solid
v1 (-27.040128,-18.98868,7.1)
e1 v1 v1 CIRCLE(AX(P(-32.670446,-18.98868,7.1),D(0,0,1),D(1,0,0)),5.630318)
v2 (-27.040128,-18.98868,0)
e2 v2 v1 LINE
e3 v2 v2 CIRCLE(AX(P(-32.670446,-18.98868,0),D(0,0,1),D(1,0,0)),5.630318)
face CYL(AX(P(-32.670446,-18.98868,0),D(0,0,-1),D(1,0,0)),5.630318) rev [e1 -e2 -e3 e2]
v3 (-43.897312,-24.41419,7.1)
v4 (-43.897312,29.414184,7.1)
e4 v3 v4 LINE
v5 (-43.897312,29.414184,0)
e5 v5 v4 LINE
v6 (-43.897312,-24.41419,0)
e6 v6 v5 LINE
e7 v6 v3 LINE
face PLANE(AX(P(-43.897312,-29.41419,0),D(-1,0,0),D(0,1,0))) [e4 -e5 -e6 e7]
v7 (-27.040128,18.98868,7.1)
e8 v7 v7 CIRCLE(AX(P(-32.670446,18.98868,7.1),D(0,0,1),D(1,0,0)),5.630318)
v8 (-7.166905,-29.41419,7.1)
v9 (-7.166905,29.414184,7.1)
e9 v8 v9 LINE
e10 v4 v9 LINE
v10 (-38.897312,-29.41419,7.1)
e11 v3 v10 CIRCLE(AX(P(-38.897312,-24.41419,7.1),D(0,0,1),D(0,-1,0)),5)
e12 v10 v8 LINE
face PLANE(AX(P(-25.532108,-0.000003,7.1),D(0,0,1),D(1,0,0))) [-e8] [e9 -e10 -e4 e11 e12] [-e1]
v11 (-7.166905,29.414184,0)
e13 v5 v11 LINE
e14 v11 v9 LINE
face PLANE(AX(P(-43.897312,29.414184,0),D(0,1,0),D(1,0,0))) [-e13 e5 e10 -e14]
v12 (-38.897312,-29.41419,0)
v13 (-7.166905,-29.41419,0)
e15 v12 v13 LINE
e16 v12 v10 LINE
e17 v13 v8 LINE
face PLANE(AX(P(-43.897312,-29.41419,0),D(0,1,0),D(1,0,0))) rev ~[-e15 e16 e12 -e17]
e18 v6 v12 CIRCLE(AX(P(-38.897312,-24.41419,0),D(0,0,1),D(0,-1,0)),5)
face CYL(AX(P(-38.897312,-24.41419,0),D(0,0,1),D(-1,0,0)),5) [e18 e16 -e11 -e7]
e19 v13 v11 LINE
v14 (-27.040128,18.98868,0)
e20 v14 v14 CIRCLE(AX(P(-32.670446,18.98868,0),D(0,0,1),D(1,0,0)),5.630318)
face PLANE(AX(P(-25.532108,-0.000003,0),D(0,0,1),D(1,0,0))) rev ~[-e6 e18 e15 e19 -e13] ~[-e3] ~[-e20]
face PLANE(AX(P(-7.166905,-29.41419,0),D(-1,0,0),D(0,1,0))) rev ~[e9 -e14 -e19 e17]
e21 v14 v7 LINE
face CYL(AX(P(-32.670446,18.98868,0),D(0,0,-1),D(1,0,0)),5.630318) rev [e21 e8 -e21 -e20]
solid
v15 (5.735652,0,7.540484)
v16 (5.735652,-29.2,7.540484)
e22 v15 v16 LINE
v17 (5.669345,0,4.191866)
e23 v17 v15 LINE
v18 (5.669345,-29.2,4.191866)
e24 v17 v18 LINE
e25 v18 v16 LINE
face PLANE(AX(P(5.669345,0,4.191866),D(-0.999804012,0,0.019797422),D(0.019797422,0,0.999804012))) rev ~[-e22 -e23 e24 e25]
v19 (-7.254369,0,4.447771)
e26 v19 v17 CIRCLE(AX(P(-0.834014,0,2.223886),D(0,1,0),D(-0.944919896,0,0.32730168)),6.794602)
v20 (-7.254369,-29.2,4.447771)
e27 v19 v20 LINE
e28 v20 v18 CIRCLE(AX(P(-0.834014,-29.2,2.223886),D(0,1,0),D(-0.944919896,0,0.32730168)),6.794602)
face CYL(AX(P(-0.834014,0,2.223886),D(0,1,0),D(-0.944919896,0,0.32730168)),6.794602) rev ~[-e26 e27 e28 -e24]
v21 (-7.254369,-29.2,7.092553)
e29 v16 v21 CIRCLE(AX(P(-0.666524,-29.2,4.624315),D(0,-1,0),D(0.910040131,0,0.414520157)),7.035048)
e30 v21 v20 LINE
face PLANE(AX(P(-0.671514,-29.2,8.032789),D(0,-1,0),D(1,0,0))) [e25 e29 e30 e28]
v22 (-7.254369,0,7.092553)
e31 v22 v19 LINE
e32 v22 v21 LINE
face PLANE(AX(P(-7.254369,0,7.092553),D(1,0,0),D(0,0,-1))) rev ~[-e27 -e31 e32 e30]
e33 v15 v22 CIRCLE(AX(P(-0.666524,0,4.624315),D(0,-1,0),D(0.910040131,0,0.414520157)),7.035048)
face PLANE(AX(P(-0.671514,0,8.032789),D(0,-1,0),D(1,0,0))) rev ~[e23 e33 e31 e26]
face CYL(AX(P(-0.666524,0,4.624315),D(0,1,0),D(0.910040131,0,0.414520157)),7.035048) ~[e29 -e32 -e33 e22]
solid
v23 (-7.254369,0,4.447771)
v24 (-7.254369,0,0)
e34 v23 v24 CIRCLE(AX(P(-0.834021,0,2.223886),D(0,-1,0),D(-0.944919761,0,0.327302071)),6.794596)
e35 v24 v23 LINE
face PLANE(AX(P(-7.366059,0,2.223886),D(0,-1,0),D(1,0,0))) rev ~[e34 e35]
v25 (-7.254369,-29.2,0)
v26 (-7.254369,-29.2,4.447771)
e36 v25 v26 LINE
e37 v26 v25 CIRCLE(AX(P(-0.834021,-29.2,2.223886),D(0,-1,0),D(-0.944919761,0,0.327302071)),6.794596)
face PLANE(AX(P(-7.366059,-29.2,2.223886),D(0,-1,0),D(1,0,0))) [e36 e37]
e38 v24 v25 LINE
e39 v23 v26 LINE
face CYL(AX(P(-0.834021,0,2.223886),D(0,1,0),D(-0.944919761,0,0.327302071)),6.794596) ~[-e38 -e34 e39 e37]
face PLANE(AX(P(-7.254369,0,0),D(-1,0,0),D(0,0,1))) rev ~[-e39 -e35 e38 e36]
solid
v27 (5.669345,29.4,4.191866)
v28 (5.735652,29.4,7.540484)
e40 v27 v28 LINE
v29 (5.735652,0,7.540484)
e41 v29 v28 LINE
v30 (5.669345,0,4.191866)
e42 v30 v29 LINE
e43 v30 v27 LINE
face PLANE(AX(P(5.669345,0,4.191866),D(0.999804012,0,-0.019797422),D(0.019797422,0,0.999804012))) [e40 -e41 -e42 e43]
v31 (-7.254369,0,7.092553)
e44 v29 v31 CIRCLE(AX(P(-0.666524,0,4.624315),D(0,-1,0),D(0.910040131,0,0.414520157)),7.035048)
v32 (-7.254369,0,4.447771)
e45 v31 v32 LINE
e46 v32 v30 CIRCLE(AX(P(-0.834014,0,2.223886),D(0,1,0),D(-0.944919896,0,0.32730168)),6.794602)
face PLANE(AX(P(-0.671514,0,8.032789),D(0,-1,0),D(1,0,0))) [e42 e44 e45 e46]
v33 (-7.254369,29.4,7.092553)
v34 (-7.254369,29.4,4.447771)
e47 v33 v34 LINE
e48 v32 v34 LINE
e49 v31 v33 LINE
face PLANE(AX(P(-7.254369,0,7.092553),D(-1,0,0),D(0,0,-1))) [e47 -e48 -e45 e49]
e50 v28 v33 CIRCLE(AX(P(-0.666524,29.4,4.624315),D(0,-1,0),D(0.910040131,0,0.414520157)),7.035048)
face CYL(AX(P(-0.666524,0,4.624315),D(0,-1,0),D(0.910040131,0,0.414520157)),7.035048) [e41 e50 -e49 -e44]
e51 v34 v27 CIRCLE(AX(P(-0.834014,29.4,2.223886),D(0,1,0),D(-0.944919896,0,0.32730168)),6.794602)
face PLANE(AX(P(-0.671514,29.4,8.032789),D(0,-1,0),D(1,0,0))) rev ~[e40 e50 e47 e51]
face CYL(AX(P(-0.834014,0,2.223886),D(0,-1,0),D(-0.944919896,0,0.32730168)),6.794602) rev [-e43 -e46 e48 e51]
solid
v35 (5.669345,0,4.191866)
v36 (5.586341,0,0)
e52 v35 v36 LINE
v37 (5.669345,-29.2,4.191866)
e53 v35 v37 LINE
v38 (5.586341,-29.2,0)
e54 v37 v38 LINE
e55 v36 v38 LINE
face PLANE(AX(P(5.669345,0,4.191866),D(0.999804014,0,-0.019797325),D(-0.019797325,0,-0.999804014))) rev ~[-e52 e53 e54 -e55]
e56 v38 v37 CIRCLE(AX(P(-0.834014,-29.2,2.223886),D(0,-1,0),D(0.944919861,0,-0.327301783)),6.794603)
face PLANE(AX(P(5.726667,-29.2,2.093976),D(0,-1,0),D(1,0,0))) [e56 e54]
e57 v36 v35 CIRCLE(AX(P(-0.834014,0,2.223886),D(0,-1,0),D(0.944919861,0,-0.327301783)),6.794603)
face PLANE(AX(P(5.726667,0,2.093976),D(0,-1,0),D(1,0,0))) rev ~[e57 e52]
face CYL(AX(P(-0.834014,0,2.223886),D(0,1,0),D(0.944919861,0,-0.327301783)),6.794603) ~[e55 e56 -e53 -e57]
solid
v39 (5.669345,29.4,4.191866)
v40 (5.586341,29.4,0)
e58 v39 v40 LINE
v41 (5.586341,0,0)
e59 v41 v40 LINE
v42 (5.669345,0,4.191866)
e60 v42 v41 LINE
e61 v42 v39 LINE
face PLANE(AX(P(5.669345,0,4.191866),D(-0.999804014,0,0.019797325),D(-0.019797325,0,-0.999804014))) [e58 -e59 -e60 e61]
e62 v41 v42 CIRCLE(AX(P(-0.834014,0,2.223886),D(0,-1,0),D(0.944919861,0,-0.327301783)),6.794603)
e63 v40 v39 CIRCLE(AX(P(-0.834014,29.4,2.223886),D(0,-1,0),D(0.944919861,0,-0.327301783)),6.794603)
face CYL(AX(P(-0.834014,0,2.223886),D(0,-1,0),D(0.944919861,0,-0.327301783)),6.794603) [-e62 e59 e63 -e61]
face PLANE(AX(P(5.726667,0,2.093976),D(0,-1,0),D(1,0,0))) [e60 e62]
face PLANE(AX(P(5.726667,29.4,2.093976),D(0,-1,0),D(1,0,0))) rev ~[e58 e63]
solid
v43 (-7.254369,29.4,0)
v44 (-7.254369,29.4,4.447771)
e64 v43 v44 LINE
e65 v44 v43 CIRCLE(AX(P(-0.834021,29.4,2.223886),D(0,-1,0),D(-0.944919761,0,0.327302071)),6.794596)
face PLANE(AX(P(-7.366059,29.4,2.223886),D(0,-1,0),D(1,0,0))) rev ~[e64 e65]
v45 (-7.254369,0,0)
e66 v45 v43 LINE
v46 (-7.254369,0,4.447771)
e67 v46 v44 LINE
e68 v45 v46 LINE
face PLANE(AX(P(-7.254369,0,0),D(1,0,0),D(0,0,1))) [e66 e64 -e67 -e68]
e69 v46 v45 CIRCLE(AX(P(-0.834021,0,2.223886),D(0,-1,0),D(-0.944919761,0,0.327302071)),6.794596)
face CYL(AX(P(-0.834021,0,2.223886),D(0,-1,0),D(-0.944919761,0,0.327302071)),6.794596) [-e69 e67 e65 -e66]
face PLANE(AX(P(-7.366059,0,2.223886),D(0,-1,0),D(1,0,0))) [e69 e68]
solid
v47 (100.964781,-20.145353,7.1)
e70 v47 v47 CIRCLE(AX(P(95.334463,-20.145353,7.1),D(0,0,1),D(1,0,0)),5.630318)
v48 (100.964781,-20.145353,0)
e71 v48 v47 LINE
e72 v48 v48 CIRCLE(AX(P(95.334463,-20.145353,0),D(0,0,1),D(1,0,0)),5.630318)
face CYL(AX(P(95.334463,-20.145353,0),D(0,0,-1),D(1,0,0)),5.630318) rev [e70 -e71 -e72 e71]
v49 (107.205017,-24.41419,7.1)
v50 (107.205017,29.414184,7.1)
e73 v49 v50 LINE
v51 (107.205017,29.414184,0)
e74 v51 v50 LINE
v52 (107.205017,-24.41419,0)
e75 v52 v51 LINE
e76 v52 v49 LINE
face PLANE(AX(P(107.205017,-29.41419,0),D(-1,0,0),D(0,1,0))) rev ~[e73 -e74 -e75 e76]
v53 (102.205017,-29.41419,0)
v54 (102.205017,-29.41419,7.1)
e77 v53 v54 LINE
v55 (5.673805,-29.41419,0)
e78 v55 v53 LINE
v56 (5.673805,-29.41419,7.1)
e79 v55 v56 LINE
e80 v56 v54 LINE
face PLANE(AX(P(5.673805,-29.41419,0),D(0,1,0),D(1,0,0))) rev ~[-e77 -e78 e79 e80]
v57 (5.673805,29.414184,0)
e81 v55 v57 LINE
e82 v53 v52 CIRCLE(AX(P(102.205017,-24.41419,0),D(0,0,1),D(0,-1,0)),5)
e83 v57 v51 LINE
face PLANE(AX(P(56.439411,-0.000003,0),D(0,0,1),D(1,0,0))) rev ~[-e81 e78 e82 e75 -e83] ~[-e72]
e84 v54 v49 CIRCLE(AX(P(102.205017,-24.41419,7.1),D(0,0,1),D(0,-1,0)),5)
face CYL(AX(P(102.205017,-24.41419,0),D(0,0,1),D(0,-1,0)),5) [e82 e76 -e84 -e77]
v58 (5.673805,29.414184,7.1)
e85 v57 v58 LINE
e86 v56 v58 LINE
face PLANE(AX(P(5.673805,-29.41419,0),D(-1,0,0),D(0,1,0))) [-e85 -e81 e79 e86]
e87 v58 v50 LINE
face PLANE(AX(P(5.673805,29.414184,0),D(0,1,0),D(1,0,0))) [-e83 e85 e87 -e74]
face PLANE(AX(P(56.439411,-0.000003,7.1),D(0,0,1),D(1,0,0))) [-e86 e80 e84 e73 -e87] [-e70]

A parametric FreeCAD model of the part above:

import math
import FreeCAD as App
import Part
import Sketcher
Q = App.Units.Quantity


def edges_at(feature, points):
    """Names of the edges that pass closest to the given points."""
    edges = feature.Shape.Edges
    near = lambda p: min(range(len(edges)), key=lambda i: edges[i].distToShape(Part.Vertex(*p))[0])
    return sorted({f"Edge{near(p) + 1}" for p in points})


def add_polygon(sketch, points):
    """Adds a closed chain of lines whose ends are joined by coincident constraints."""
    first, n = sketch.GeometryCount, len(points)
    for a, b in zip(points, points[1:] + points[:1]):
        sketch.addGeometry(Part.LineSegment(App.Vector(*a, 0), App.Vector(*b, 0)), False)
    for i in range(n):
        sketch.addConstraint(Sketcher.Constraint("Coincident", first + i, 2, first + (i + 1) % n, 1))

doc = App.newDocument("Part")
body = doc.addObject("PartDesign::Body", "Body")
body.AllowCompound = True

sketch1 = body.newObject("Sketcher::SketchObject", "Sketch")
sketch1.AttachmentSupport = (doc.getObject("XY_Plane"), [""])
sketch1.MapMode = "FlatFace"
add_polygon(sketch1, [(-44, 29), (-44, -29), (-7, -29), (-7, 29)])
sketch1.addGeometry(Part.Circle(App.Vector(-33, -19, 0), App.Vector(0, 0, 1), 6), False)
sketch1.addGeometry(Part.Circle(App.Vector(-33, 19, 0), App.Vector(0, 0, 1), 6), False)
add_polygon(sketch1, [(6, 29), (6, -29), (107, -29), (107, 29)])
sketch1.addGeometry(Part.Circle(App.Vector(95, -20, 0), App.Vector(0, 0, 1), 6), False)
sketch1.addConstraint(Sketcher.Constraint("Vertical", 0))
sketch1.addConstraint(Sketcher.Constraint("Horizontal", 1))
sketch1.addConstraint(Sketcher.Constraint("Vertical", 2))
sketch1.addConstraint(Sketcher.Constraint("Horizontal", 3))
sketch1.addConstraint(Sketcher.Constraint("Vertical", 6))
sketch1.addConstraint(Sketcher.Constraint("Horizontal", 7))
sketch1.addConstraint(Sketcher.Constraint("Vertical", 8))
sketch1.addConstraint(Sketcher.Constraint("Horizontal", 9))
sketch1.addConstraint(Sketcher.Constraint("Equal", 4, 5))
sketch1.addConstraint(Sketcher.Constraint("Equal", 5, 10))
sketch1.addConstraint(Sketcher.Constraint("Symmetric", 4, 3, 5, 3, -1))
sketch1.addConstraint(Sketcher.Constraint("Horizontal", 1, 2, 6, 2))
sketch1.addConstraint(Sketcher.Constraint("Horizontal", 3, 2, 8, 2))
sketch1.addConstraint(Sketcher.Constraint("Diameter", 4, Q("11.260636 mm")))
sketch1.addConstraint(Sketcher.Constraint("DistanceX", 1, 1, 1, 2, Q("36.730407 mm")))
sketch1.addConstraint(Sketcher.Constraint("DistanceX", 7, 1, 7, 2, Q("101.531213 mm")))
sketch1.addConstraint(Sketcher.Constraint("DistanceY", 0, 2, 0, 1, Q("58.828374 mm")))
sketch1.addConstraint(Sketcher.Constraint("DistanceY", 4, 3, -1, 1, Q("18.98868 mm")))
sketch1.addConstraint(Sketcher.Constraint("DistanceX", 0, 2, -1, 1, Q("43.897312 mm")))
sketch1.addConstraint(Sketcher.Constraint("DistanceY", 0, 2, -1, 1, Q("29.41419 mm")))
sketch1.addConstraint(Sketcher.Constraint("DistanceX", 4, 3, 10, 3, Q("128.004909 mm")))
sketch1.addConstraint(Sketcher.Constraint("DistanceX", 4, 3, 1, 2, Q("25.503541 mm")))
sketch1.addConstraint(Sketcher.Constraint("DistanceX", 1, 2, 6, 2, Q("12.840709 mm")))
sketch1.addConstraint(Sketcher.Constraint("DistanceY", 10, 3, -1, 1, Q("20.145353 mm")))
pad1 = body.newObject("PartDesign::Pad", "Pad")
pad1.Profile = sketch1
pad1.Length = 7.1
doc.recompute()

fillet = body.newObject("PartDesign::Fillet", "Fillet")
fillet.Base = (pad1, edges_at(pad1, [(-43.897, -29.414, 3.55), (107.205, -29.414, 3.55)]))
fillet.Radius = 5
body2 = doc.addObject("PartDesign::Body", "Body001")
body2.AllowCompound = True

sketch2 = body2.newObject("Sketcher::SketchObject", "Sketch001")
sketch2.AttachmentSupport = (doc.getObject("XZ_Plane001"), [""])
sketch2.MapMode = "FlatFace"
sketch2.addGeometry(Part.LineSegment(App.Vector(5.7, 4.2, 0), App.Vector(5.7, 7.5, 0)), False)
sketch2.addGeometry(Part.ArcOfCircle(Part.Circle(App.Vector(-0.7, 4.6, 0), App.Vector(0, 0, 1), 7), math.radians(24), math.radians(159)), False)
sketch2.addGeometry(Part.LineSegment(App.Vector(-7.3, 7.1, 0), App.Vector(-7.3, 4.4, 0)), False)
sketch2.addGeometry(Part.ArcOfCircle(Part.Circle(App.Vector(-0.8, 2.2, 0), App.Vector(0, 0, 1), 6.8), math.radians(17), math.radians(161)), False)
sketch2.addGeometry(Part.ArcOfCircle(Part.Circle(App.Vector(-0.8, 2.2, 0), App.Vector(0, 0, 1), 6.8), math.radians(-19), math.radians(17)), False)
sketch2.addGeometry(Part.LineSegment(App.Vector(5.7, 4.2, 0), App.Vector(5.6, 0, 0)), False)
sketch2.addGeometry(Part.LineSegment(App.Vector(-7.3, 0, 0), App.Vector(-7.3, 4.4, 0)), False)
sketch2.addGeometry(Part.ArcOfCircle(Part.Circle(App.Vector(-0.8, 2.2, 0), App.Vector(0, 0, 1), 6.8), math.radians(161), math.radians(199)), False)
sketch2.addConstraint(Sketcher.Constraint("Coincident", 0, 2, 1, 1))
sketch2.addConstraint(Sketcher.Constraint("Coincident", 1, 2, 2, 1))
sketch2.addConstraint(Sketcher.Constraint("Coincident", 2, 2, 3, 2))
sketch2.addConstraint(Sketcher.Constraint("Coincident", 3, 1, 0, 1))
sketch2.addConstraint(Sketcher.Constraint("Coincident", 4, 1, 5, 2))
sketch2.addConstraint(Sketcher.Constraint("Coincident", 5, 1, 4, 2))
sketch2.addConstraint(Sketcher.Constraint("Coincident", 6, 1, 7, 2))
sketch2.addConstraint(Sketcher.Constraint("Coincident", 7, 1, 6, 2))
sketch2.addConstraint(Sketcher.Constraint("Vertical", 2))
sketch2.addConstraint(Sketcher.Constraint("Vertical", 6))
sketch2.addConstraint(Sketcher.Constraint("Coincident", 4, 3, 3, 3))
sketch2.addConstraint(Sketcher.Constraint("Coincident", 7, 3, 3, 3))
sketch2.addConstraint(Sketcher.Constraint("Coincident", 5, 1, 3, 1))
sketch2.addConstraint(Sketcher.Constraint("Coincident", 7, 1, 2, 2))
sketch2.addConstraint(Sketcher.Constraint("PointOnObject", 4, 1, -1))
sketch2.addConstraint(Sketcher.Constraint("PointOnObject", 6, 1, -1))
sketch2.addConstraint(Sketcher.Constraint("Parallel", 0, 5))
sketch2.addConstraint(Sketcher.Constraint("Radius", 1, Q("7.035048 mm")))
sketch2.addConstraint(Sketcher.Constraint("Radius", 3, Q("6.794602 mm")))
sketch2.addConstraint(Sketcher.Constraint("DistanceY", 2, 2, 2, 1, Q("2.644782 mm")))
sketch2.addConstraint(Sketcher.Constraint("DistanceY", 6, 1, 6, 2, Q("4.447771 mm")))
sketch2.addConstraint(Sketcher.Constraint("DistanceY", 4, 3, 0, 2, Q("5.316598 mm")))
sketch2.addConstraint(Sketcher.Constraint("DistanceX", 7, 3, -1, 1, Q("0.834021 mm")))
sketch2.addConstraint(Sketcher.Constraint("DistanceX", 3, 3, 1, 3, Q("0.16749 mm")))
pad2 = body2.newObject("PartDesign::Pad", "Pad001")
pad2.Profile = sketch2
pad2.Length = 29.2
body3 = doc.addObject("PartDesign::Body", "Body002")
body3.AllowCompound = True

sketch3 = body3.newObject("Sketcher::SketchObject", "Sketch002")
sketch3.AttachmentSupport = (doc.getObject("XZ_Plane002"), [""])
sketch3.MapMode = "FlatFace"
sketch3.addGeometry(Part.LineSegment(App.Vector(5.7, 4.2, 0), App.Vector(5.7, 7.5, 0)), False)
sketch3.addGeometry(Part.ArcOfCircle(Part.Circle(App.Vector(-0.7, 4.6, 0), App.Vector(0, 0, 1), 7), math.radians(24), math.radians(159)), False)
sketch3.addGeometry(Part.LineSegment(App.Vector(-7.3, 7.1, 0), App.Vector(-7.3, 4.4, 0)), False)
sketch3.addGeometry(Part.ArcOfCircle(Part.Circle(App.Vector(-0.8, 2.2, 0), App.Vector(0, 0, 1), 6.8), math.radians(17), math.radians(161)), False)
sketch3.addGeometry(Part.ArcOfCircle(Part.Circle(App.Vector(-0.8, 2.2, 0), App.Vector(0, 0, 1), 6.8), math.radians(-19), math.radians(17)), False)
sketch3.addGeometry(Part.LineSegment(App.Vector(5.7, 4.2, 0), App.Vector(5.6, 0, 0)), False)
sketch3.addGeometry(Part.LineSegment(App.Vector(-7.3, 0, 0), App.Vector(-7.3, 4.4, 0)), False)
sketch3.addGeometry(Part.ArcOfCircle(Part.Circle(App.Vector(-0.8, 2.2, 0), App.Vector(0, 0, 1), 6.8), math.radians(161), math.radians(199)), False)
sketch3.addConstraint(Sketcher.Constraint("Coincident", 0, 2, 1, 1))
sketch3.addConstraint(Sketcher.Constraint("Coincident", 1, 2, 2, 1))
sketch3.addConstraint(Sketcher.Constraint("Coincident", 2, 2, 3, 2))
sketch3.addConstraint(Sketcher.Constraint("Coincident", 3, 1, 0, 1))
sketch3.addConstraint(Sketcher.Constraint("Coincident", 4, 1, 5, 2))
sketch3.addConstraint(Sketcher.Constraint("Coincident", 5, 1, 4, 2))
sketch3.addConstraint(Sketcher.Constraint("Coincident", 6, 1, 7, 2))
sketch3.addConstraint(Sketcher.Constraint("Coincident", 7, 1, 6, 2))
sketch3.addConstraint(Sketcher.Constraint("Vertical", 2))
sketch3.addConstraint(Sketcher.Constraint("Vertical", 6))
sketch3.addConstraint(Sketcher.Constraint("Coincident", 4, 3, 3, 3))
sketch3.addConstraint(Sketcher.Constraint("Coincident", 7, 3, 3, 3))
sketch3.addConstraint(Sketcher.Constraint("Coincident", 5, 1, 3, 1))
sketch3.addConstraint(Sketcher.Constraint("Coincident", 7, 1, 2, 2))
sketch3.addConstraint(Sketcher.Constraint("PointOnObject", 4, 1, -1))
sketch3.addConstraint(Sketcher.Constraint("PointOnObject", 6, 1, -1))
sketch3.addConstraint(Sketcher.Constraint("Parallel", 0, 5))
sketch3.addConstraint(Sketcher.Constraint("Radius", 1, Q("7.035048 mm")))
sketch3.addConstraint(Sketcher.Constraint("Radius", 3, Q("6.794602 mm")))
sketch3.addConstraint(Sketcher.Constraint("DistanceY", 2, 2, 2, 1, Q("2.644782 mm")))
sketch3.addConstraint(Sketcher.Constraint("DistanceY", 6, 1, 6, 2, Q("4.447771 mm")))
sketch3.addConstraint(Sketcher.Constraint("DistanceY", 4, 3, 0, 2, Q("5.316598 mm")))
sketch3.addConstraint(Sketcher.Constraint("DistanceX", 7, 3, -1, 1, Q("0.834021 mm")))
sketch3.addConstraint(Sketcher.Constraint("DistanceX", 3, 3, 1, 3, Q("0.16749 mm")))
pad3 = body3.newObject("PartDesign::Pad", "Pad002")
pad3.Profile = sketch3
pad3.Length = 29.4
pad3.Reversed = True

doc.recompute()
